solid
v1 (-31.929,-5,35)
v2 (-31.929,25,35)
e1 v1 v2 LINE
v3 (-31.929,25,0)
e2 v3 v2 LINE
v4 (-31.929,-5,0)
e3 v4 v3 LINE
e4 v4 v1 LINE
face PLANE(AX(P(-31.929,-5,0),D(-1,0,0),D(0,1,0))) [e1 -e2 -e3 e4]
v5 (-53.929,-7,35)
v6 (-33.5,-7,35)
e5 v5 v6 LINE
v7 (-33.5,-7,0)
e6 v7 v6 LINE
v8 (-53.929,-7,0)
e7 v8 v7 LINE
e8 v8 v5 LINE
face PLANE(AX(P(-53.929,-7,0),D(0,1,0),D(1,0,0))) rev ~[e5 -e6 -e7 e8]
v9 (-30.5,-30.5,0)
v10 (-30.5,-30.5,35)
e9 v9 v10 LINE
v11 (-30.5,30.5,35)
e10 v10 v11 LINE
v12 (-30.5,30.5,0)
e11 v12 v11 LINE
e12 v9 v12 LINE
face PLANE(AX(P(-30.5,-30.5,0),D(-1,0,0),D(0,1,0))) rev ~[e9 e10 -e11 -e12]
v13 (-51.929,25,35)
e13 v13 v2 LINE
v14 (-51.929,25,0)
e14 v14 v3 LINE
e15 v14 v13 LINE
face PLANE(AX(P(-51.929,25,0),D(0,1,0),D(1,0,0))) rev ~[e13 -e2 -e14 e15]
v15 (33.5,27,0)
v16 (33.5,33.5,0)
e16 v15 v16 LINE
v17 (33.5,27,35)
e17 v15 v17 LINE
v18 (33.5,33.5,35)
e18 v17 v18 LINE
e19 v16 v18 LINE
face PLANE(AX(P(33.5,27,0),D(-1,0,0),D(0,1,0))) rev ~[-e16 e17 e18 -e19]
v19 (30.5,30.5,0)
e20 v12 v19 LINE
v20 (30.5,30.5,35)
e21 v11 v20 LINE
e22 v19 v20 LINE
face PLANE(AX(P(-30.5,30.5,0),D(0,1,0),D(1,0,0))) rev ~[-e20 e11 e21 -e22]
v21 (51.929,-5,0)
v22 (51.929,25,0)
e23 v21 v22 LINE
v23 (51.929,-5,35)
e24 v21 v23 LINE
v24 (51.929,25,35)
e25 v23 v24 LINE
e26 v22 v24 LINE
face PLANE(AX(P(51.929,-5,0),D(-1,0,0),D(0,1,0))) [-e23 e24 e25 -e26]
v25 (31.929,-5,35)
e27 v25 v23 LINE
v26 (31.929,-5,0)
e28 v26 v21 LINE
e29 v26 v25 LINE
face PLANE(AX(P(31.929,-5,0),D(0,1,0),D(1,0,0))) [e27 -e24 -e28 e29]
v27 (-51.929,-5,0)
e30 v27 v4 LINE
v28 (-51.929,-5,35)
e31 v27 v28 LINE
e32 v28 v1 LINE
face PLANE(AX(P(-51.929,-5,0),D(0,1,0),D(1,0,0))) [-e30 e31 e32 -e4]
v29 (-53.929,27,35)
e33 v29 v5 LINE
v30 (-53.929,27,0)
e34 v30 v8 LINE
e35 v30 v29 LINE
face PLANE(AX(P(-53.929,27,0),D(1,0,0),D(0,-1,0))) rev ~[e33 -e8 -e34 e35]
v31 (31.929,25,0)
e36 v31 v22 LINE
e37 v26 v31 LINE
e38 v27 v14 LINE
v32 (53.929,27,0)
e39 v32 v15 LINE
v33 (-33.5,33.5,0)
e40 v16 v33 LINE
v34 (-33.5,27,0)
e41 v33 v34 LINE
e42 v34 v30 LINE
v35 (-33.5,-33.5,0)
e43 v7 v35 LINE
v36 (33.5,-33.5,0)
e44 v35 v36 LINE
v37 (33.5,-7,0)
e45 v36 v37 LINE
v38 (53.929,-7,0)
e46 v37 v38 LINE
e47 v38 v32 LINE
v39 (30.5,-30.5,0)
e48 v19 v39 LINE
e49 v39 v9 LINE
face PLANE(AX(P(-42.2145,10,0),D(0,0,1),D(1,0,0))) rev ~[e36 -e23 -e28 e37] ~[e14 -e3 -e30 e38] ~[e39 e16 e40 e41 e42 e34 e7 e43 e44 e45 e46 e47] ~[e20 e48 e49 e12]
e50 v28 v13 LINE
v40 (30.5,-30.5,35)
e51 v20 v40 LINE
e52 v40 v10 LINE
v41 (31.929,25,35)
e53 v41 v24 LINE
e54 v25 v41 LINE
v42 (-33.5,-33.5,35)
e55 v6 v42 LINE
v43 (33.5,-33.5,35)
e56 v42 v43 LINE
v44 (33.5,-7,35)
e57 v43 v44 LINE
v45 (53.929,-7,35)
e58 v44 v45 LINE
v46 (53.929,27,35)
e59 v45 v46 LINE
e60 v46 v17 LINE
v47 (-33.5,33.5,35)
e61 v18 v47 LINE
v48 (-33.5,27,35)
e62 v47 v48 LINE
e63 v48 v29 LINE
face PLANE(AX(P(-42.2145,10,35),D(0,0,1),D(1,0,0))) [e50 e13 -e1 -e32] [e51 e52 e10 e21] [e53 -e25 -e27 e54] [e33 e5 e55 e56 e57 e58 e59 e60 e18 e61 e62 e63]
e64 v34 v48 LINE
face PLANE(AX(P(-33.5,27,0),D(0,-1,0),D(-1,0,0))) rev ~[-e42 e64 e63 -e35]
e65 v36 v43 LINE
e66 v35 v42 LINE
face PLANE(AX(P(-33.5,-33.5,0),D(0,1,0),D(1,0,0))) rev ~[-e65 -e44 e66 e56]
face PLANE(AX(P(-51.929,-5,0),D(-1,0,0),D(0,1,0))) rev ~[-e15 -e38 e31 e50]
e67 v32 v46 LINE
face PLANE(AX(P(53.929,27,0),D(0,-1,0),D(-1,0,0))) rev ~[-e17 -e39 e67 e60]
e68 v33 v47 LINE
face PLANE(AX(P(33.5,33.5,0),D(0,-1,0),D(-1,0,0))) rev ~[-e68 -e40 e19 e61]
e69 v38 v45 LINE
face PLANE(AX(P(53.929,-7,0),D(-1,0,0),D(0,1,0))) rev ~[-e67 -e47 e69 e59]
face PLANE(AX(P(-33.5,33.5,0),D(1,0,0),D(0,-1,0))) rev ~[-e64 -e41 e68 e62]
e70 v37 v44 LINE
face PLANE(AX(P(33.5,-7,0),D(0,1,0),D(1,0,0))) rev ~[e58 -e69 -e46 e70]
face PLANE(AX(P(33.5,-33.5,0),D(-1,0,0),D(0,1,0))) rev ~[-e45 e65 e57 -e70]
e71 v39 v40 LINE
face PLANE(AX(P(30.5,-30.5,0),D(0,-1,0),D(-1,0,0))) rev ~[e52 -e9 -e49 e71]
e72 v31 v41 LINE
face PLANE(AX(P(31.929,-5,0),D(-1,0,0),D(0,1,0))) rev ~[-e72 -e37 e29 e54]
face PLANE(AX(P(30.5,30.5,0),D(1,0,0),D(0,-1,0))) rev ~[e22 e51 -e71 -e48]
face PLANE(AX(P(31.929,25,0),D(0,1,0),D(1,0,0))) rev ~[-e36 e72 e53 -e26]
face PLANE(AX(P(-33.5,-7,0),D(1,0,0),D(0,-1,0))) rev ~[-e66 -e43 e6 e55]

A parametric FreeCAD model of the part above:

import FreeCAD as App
import Part
import Sketcher
from FreeCAD import Vector
Q = App.Units.Quantity


def add_polygon(sketch, points):
    """Adds a closed chain of lines whose ends are joined by coincident constraints."""
    first, n = sketch.GeometryCount, len(points)
    for a, b in zip(points, points[1:] + points[:1]):
        sketch.addGeometry(Part.LineSegment(App.Vector(*a, 0), App.Vector(*b, 0)), False)
    for i in range(n):
        sketch.addConstraint(Sketcher.Constraint("Coincident", first + i, 2, first + (i + 1) % n, 1))

doc = App.newDocument("Part")
body = doc.addObject("PartDesign::Body", "Body")

sketch1 = doc.addObject("Sketcher::SketchObject", "Sketch")
body.addObject(sketch1)
sketch1.AttachmentSupport = (doc.XY_Plane, [""])
sketch1.MapMode = "FlatFace"
add_polygon(sketch1, [(-54, -7), (-34, -7), (-34, -34), (34, -34), (34, -7), (54, -7), (54, 27), (34, 27), (34, 34), (-34, 34), (-34, 27), (-54, 27)])
add_polygon(sketch1, [(-30, 30), (30, 30), (30, -30), (-30, -30)])
add_polygon(sketch1, [(-32, -5), (-52, -5), (-52, 25), (-32, 25)])
add_polygon(sketch1, [(52, -5), (32, -5), (32, 25), (52, 25)])
sketch1.addConstraint([
    Sketcher.Constraint("Horizontal", 0),
    Sketcher.Constraint("Vertical", 1),
    Sketcher.Constraint("Horizontal", 2),
    Sketcher.Constraint("Vertical", 3),
    Sketcher.Constraint("Horizontal", 4),
    Sketcher.Constraint("Vertical", 5),
    Sketcher.Constraint("Horizontal", 6),
    Sketcher.Constraint("Vertical", 7),
    Sketcher.Constraint("Horizontal", 8),
    Sketcher.Constraint("Vertical", 9),
    Sketcher.Constraint("Horizontal", 10),
    Sketcher.Constraint("Vertical", 11),
    Sketcher.Constraint("Horizontal", 12),
    Sketcher.Constraint("Vertical", 13),
    Sketcher.Constraint("Horizontal", 14),
    Sketcher.Constraint("Vertical", 15),
    Sketcher.Constraint("Horizontal", 16),
    Sketcher.Constraint("Vertical", 17),
    Sketcher.Constraint("Horizontal", 18),
    Sketcher.Constraint("Vertical", 19),
    Sketcher.Constraint("Horizontal", 20),
    Sketcher.Constraint("Vertical", 21),
    Sketcher.Constraint("Horizontal", 22),
    Sketcher.Constraint("Vertical", 23),
    Sketcher.Constraint("Symmetric", 1, 2, 7, 2, -1, 1),
    Sketcher.Constraint("Symmetric", 12, 2, 14, 2, -1, 1),
    Sketcher.Constraint("Symmetric", 0, 2, 3, 2, -2),
    Sketcher.Constraint("Symmetric", 6, 2, 9, 2, -2),
    Sketcher.Constraint("Symmetric", 19, 2, 20, 2, -2),
    Sketcher.Constraint("Symmetric", 17, 2, 22, 2, -2),
    Sketcher.Constraint("Equal", 0, 4),
    Sketcher.Constraint("Equal", 14, 13),
    Sketcher.Constraint("DistanceX", 2, 1, 2, 2, Q("67 mm")),
    Sketcher.Constraint("DistanceX", 12, 1, 12, 2, Q("61 mm")),
    Sketcher.Constraint("DistanceX", 16, 2, 16, 1, Q("20 mm")),
    Sketcher.Constraint("DistanceY", 5, 1, 5, 2, Q("34 mm")),
    Sketcher.Constraint("DistanceY", 17, 1, 17, 2, Q("30 mm")),
    Sketcher.Constraint("DistanceY", 1, 2, 1, 1, Q("26.5 mm")),
    Sketcher.Constraint("DistanceY", 7, 1, 7, 2, Q("6.5 mm")),
    Sketcher.Constraint("DistanceY", 16, 2, -1, 1, Q("5 mm")),
    Sketcher.Constraint("DistanceX", 11, 2, 16, 2, Q("2 mm")),
    Sketcher.Constraint("DistanceX", 0, 1, 0, 2, Q("20.429 mm")),
])
pad1 = doc.addObject("PartDesign::Pad", "Pad")
body.addObject(pad1)
pad1.Profile = sketch1
pad1.Length = 35

doc.recompute()
